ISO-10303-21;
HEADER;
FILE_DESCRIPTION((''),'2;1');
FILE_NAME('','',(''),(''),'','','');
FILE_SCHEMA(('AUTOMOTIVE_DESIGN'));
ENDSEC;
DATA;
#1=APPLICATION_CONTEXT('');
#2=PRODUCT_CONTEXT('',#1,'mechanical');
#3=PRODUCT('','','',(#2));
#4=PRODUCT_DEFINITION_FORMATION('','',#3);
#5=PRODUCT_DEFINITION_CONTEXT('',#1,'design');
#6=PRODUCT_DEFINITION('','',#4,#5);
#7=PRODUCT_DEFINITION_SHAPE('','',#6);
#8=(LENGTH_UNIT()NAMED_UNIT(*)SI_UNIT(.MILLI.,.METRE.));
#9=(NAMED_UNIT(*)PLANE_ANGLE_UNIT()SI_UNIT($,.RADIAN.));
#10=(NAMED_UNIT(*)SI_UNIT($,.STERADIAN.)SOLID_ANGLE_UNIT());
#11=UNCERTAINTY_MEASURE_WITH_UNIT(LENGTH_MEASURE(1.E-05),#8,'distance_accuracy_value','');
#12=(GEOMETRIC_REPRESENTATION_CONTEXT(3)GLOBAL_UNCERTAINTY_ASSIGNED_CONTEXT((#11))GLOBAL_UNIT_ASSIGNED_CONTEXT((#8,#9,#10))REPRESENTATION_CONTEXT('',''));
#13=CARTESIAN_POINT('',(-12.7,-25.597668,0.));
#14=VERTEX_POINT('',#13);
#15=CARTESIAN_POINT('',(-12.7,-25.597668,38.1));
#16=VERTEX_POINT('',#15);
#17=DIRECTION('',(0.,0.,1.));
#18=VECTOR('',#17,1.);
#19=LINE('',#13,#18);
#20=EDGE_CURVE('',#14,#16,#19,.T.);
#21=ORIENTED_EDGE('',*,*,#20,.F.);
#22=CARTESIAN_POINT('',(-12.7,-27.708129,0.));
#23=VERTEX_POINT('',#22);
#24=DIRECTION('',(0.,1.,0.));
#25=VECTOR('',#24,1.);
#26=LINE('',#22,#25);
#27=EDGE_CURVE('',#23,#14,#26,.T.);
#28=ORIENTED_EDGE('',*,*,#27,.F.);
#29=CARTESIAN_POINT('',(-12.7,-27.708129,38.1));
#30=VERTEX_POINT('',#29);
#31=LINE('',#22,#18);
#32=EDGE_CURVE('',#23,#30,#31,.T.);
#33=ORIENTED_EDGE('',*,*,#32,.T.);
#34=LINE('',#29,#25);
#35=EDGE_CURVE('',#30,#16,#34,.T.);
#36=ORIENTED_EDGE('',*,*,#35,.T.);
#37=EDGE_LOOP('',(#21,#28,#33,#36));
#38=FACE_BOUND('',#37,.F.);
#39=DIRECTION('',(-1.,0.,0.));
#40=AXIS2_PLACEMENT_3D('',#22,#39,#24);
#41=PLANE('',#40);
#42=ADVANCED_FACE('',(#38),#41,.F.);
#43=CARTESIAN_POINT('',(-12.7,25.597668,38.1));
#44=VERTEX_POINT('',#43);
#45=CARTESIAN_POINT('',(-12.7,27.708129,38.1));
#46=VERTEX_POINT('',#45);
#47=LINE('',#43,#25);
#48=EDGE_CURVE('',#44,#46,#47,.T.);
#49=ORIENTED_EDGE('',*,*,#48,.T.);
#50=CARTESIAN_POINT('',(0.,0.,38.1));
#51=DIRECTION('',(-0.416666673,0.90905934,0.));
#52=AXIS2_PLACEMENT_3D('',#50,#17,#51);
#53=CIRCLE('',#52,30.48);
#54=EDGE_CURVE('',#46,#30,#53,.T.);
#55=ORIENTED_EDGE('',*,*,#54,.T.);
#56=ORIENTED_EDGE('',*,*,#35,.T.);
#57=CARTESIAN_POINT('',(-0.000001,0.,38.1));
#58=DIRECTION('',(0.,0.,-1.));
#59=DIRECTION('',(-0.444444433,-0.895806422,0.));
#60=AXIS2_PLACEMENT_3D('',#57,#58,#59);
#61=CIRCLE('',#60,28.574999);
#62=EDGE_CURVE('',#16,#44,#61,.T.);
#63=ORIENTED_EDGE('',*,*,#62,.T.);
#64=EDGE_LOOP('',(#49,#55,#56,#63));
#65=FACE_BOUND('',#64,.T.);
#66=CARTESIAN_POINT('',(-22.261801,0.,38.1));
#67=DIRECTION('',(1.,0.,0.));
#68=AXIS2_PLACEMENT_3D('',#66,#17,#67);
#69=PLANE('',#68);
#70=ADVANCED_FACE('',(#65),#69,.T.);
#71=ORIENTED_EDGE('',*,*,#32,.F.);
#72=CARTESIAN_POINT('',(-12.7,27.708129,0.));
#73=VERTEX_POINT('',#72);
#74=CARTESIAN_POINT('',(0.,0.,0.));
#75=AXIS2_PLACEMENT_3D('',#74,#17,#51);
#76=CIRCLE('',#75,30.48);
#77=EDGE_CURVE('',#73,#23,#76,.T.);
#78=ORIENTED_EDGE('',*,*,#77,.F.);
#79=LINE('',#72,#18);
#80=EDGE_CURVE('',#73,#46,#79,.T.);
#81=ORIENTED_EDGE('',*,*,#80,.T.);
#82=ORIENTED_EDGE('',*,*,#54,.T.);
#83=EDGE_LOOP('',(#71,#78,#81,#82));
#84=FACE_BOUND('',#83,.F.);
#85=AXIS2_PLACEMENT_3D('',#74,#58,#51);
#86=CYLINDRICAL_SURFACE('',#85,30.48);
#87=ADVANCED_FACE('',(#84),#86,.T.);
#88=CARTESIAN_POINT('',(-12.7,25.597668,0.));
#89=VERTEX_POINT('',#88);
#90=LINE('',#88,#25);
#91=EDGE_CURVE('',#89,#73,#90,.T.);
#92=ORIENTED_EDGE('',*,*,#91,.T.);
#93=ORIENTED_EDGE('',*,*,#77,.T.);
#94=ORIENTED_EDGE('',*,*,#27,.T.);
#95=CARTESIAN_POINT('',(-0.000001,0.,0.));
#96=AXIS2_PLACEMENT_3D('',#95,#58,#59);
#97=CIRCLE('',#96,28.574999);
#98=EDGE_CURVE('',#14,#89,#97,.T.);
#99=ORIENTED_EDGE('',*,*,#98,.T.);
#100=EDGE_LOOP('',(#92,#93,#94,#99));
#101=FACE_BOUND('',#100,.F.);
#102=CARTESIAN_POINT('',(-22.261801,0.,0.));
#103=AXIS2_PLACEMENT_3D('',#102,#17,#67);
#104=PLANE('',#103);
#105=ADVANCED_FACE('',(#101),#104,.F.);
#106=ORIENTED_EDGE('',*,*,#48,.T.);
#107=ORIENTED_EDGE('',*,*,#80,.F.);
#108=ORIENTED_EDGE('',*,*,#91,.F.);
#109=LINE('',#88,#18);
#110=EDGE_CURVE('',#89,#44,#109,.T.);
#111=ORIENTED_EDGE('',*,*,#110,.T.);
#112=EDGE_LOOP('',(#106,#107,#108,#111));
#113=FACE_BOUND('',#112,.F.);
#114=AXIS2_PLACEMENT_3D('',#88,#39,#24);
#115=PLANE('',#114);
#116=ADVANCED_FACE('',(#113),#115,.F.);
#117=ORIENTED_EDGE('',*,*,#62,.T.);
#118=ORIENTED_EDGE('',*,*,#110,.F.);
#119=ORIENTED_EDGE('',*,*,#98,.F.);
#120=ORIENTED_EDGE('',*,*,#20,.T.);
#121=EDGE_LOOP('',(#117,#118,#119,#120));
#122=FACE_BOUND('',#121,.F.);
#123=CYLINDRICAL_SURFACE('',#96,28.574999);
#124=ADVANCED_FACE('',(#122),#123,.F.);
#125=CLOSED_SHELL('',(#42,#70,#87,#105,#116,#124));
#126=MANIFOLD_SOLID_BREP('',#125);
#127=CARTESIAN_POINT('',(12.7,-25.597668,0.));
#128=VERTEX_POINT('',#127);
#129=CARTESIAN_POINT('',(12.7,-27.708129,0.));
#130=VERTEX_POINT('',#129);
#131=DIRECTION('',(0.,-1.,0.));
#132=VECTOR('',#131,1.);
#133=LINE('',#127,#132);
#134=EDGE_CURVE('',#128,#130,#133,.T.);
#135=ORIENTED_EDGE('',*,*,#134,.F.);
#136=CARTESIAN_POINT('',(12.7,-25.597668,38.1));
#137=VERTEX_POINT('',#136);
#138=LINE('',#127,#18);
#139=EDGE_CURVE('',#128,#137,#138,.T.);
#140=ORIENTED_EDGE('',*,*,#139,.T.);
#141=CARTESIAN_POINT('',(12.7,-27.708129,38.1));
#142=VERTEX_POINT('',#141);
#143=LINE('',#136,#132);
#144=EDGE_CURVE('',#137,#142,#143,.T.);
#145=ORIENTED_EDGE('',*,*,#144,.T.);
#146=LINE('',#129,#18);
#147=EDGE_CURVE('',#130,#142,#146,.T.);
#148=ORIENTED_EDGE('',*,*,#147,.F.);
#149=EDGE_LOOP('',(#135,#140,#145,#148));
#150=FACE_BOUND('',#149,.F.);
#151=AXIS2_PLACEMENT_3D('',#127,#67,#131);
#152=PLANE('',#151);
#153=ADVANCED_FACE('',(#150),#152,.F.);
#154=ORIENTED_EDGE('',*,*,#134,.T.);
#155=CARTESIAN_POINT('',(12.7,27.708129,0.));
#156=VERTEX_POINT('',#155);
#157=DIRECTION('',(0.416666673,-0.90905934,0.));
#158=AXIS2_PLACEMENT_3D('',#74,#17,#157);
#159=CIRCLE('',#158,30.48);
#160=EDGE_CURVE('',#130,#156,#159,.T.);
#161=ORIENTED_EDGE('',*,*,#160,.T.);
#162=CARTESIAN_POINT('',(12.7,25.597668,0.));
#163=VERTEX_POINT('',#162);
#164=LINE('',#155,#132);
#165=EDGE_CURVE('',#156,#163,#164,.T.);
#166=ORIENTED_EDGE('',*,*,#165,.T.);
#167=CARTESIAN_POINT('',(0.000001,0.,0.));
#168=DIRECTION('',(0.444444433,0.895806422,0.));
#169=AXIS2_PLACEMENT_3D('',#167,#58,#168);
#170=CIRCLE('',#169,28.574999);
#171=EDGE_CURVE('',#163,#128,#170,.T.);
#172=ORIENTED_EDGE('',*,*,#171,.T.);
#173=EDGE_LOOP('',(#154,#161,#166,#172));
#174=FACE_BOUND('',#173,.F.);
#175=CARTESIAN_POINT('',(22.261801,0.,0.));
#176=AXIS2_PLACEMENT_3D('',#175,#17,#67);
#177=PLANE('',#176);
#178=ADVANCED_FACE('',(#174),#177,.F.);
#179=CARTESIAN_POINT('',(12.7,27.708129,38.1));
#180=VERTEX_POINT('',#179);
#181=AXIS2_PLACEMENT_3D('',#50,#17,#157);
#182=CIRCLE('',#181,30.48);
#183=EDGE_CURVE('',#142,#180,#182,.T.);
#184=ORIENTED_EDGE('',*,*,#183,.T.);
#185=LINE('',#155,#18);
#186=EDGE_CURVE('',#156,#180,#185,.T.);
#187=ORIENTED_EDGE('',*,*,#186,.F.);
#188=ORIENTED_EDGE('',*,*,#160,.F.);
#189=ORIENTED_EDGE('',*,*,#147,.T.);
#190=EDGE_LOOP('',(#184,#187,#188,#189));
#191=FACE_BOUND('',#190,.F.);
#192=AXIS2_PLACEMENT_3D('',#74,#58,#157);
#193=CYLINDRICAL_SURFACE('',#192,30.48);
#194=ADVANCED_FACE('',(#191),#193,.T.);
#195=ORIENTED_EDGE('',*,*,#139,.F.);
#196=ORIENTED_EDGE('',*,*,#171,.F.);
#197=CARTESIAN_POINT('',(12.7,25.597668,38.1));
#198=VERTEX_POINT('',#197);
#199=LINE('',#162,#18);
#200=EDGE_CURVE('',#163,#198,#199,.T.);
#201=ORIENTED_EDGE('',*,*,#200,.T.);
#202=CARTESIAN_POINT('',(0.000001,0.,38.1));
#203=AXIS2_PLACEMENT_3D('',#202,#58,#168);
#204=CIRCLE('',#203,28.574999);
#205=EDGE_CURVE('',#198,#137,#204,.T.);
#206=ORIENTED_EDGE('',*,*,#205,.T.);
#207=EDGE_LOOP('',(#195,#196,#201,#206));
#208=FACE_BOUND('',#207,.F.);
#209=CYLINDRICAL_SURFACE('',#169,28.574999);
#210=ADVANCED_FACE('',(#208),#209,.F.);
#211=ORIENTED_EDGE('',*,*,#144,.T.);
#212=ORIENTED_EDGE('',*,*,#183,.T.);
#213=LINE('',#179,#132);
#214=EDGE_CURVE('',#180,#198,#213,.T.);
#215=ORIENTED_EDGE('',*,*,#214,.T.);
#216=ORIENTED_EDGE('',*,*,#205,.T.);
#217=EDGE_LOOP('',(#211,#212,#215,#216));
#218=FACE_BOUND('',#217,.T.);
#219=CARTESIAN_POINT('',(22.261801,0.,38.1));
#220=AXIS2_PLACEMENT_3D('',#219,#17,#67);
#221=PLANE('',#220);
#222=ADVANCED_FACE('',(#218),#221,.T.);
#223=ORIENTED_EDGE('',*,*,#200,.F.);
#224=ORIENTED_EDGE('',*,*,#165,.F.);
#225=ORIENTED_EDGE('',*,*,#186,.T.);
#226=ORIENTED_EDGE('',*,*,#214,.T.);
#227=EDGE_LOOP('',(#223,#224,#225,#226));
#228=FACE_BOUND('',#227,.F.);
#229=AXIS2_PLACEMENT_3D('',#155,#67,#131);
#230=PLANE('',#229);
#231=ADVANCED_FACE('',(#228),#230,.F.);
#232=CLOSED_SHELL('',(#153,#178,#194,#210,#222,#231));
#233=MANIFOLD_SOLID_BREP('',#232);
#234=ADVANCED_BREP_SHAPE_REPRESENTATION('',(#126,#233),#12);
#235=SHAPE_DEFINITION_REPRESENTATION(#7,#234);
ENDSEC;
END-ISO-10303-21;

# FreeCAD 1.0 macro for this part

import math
import FreeCAD as App
import Part
import Sketcher
from FreeCAD import Vector
Q = App.Units.Quantity

doc = App.newDocument("Part")
body = doc.addObject("PartDesign::Body", "Body")
body.AllowCompound = True

# Sketch on XY plane
sketch1 = doc.addObject("Sketcher::SketchObject", "Sketch")
body.addObject(sketch1)
sketch1.AttachmentSupport = (doc.XY_Plane, [""])
sketch1.MapMode = "FlatFace"
sketch1.addGeometry([
    Part.ArcOfCircle(Part.Circle(Vector(0, 0, 0), Vector(0, 0, 1), 28.6), math.radians(116), math.radians(244)),  # 0
    Part.LineSegment(Vector(-12.7, 25.6, 0), Vector(-12.7, 27.7, 0)),  # 1
    Part.ArcOfCircle(Part.Circle(Vector(0, 0, 0), Vector(0, 0, 1), 30.5), math.radians(115), math.radians(245)),  # 2
    Part.LineSegment(Vector(-12.7, -27.7, 0), Vector(-12.7, -25.6, 0)),  # 3
    Part.LineSegment(Vector(12.7, 27.7, 0), Vector(12.7, 25.6, 0)),  # 4
    Part.ArcOfCircle(Part.Circle(Vector(0, 0, 0), Vector(0, 0, 1), 28.6), math.radians(-64), math.radians(64)),  # 5
    Part.LineSegment(Vector(12.7, -25.6, 0), Vector(12.7, -27.7, 0)),  # 6
    Part.ArcOfCircle(Part.Circle(Vector(0, 0, 0), Vector(0, 0, 1), 30.5), math.radians(-65), math.radians(65)),  # 7
], False)
sketch1.addConstraint([
    Sketcher.Constraint("Coincident", 0, 1, 1, 1),
    Sketcher.Constraint("Coincident", 1, 2, 2, 1),
    Sketcher.Constraint("Coincident", 2, 2, 3, 1),
    Sketcher.Constraint("Coincident", 3, 2, 0, 2),
    Sketcher.Constraint("Coincident", 4, 2, 5, 2),
    Sketcher.Constraint("Coincident", 5, 1, 6, 1),
    Sketcher.Constraint("Coincident", 6, 2, 7, 1),
    Sketcher.Constraint("Coincident", 7, 2, 4, 1),
    Sketcher.Constraint("Vertical", 1),
    Sketcher.Constraint("Vertical", 3),
    Sketcher.Constraint("Vertical", 4),
    Sketcher.Constraint("Vertical", 6),
    Sketcher.Constraint("Coincident", 0, 3, -1, 1),
    Sketcher.Constraint("Coincident", 2, 3, -1, 1),
    Sketcher.Constraint("Coincident", 5, 3, -1, 1),
    Sketcher.Constraint("Coincident", 7, 3, -1, 1),
    Sketcher.Constraint("Equal", 0, 5),
    Sketcher.Constraint("Equal", 2, 7),
    Sketcher.Constraint("Horizontal", 0, 1, 4, 2),
    Sketcher.Constraint("Horizontal", 3, 2, 5, 1),
    Sketcher.Constraint("Vertical", 1, 2, 2, 2),
    Sketcher.Constraint("Radius", 2, Q("1.2 in")),
    Sketcher.Constraint("Radius", 0, Q("1.125 in")),
    Sketcher.Constraint("DistanceX", 0, 1, 4, 2, Q("1 in")),
])
pad1 = doc.addObject("PartDesign::Pad", "Pad")
body.addObject(pad1)
pad1.Profile = sketch1
pad1.Length = Q("1.5 in")

doc.recompute()
